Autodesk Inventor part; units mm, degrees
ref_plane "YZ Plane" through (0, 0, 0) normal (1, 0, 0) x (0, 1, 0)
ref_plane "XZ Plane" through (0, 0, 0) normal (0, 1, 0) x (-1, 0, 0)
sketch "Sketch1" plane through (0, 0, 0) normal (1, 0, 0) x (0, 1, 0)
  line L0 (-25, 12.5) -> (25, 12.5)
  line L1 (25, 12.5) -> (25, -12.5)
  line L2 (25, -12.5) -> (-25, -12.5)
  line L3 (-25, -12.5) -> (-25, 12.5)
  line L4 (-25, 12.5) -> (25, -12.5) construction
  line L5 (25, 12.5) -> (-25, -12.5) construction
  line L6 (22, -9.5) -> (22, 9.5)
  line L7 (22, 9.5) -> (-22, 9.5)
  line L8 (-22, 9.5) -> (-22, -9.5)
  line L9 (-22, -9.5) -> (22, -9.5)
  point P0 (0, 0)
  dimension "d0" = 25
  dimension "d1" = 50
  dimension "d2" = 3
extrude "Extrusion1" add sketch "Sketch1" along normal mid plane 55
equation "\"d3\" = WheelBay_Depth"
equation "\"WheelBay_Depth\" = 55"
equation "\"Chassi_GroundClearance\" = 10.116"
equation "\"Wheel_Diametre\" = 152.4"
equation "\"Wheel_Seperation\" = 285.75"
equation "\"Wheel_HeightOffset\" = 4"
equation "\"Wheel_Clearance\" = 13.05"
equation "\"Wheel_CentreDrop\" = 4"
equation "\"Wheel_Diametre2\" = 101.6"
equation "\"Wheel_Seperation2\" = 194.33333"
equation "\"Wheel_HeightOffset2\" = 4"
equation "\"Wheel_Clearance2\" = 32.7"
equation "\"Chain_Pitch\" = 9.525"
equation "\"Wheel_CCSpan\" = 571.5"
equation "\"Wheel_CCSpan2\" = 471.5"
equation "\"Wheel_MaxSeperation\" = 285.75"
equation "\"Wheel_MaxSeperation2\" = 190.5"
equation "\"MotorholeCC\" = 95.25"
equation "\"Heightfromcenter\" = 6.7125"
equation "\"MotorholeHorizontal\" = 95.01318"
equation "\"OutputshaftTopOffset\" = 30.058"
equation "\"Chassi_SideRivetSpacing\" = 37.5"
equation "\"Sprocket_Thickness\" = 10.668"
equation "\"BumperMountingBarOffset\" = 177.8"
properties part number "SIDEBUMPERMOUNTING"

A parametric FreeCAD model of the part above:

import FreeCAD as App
import Part
import Sketcher

V = App.Vector


def add_polygon(sketch, points):
    """Adds a closed chain of lines whose ends are joined by coincident constraints."""
    first, n = sketch.GeometryCount, len(points)
    for a, b in zip(points, points[1:] + points[:1]):
        sketch.addGeometry(Part.LineSegment(App.Vector(*a, 0), App.Vector(*b, 0)), False)
    for i in range(n):
        sketch.addConstraint(Sketcher.Constraint("Coincident", first + i, 2, first + (i + 1) % n, 1))

doc = App.newDocument("Part")
params = doc.addObject("Spreadsheet::Sheet", "Params")
for row, (alias, value) in enumerate([
    ("sketch1_width", "50 mm"),
    ("sketch1_height", "25 mm"),
    ("pad1_length", "55 mm"),
], start=1):
    params.set(f"A{row}", alias)
    params.set(f"B{row}", "=" + value)
    params.setAlias(f"B{row}", alias)

body = doc.addObject("PartDesign::Body", "Body")

# Sketch on YZ plane
sketch1 = body.newObject("Sketcher::SketchObject", "Sketch")
sketch1.AttachmentSupport = (doc.getObject("YZ_Plane"), [""])
sketch1.MapMode = "FlatFace"
add_polygon(sketch1, [(25, 12), (-25, 12), (-25, -12), (25, -12)])  # lines 0-3
add_polygon(sketch1, [(22, 10), (22, -10), (-22, -10), (-22, 10)])  # lines 4-7
sketch1.addConstraint([
    Sketcher.Constraint("Horizontal", 0),
    Sketcher.Constraint("Vertical", 1),
    Sketcher.Constraint("Horizontal", 2),
    Sketcher.Constraint("Vertical", 3),
    Sketcher.Constraint("Vertical", 4),
    Sketcher.Constraint("Horizontal", 5),
    Sketcher.Constraint("Vertical", 6),
    Sketcher.Constraint("Horizontal", 7),
    Sketcher.Constraint("Symmetric", 0, 2, 2, 2, -1, 1),
    Sketcher.Constraint("Symmetric", 4, 2, 6, 2, -1, 1),
    Sketcher.Constraint("DistanceX", 0, 2, 0, 1, 50.0),
    Sketcher.Constraint("DistanceY", 1, 2, 1, 1, 25.0),
    Sketcher.Constraint("DistanceX", 4, 2, 2, 2, 3.0),
    Sketcher.Constraint("DistanceY", 2, 2, 4, 2, 3.0),
])
sketch1.setExpression("Constraints[18]", "Params.sketch1_width")
sketch1.setExpression("Constraints[19]", "Params.sketch1_height")
pad1 = body.newObject("PartDesign::Pad", "Pad")
pad1.Profile = sketch1
pad1.setExpression("Length", "Params.pad1_length")
pad1.Midplane = True

doc.recompute()
